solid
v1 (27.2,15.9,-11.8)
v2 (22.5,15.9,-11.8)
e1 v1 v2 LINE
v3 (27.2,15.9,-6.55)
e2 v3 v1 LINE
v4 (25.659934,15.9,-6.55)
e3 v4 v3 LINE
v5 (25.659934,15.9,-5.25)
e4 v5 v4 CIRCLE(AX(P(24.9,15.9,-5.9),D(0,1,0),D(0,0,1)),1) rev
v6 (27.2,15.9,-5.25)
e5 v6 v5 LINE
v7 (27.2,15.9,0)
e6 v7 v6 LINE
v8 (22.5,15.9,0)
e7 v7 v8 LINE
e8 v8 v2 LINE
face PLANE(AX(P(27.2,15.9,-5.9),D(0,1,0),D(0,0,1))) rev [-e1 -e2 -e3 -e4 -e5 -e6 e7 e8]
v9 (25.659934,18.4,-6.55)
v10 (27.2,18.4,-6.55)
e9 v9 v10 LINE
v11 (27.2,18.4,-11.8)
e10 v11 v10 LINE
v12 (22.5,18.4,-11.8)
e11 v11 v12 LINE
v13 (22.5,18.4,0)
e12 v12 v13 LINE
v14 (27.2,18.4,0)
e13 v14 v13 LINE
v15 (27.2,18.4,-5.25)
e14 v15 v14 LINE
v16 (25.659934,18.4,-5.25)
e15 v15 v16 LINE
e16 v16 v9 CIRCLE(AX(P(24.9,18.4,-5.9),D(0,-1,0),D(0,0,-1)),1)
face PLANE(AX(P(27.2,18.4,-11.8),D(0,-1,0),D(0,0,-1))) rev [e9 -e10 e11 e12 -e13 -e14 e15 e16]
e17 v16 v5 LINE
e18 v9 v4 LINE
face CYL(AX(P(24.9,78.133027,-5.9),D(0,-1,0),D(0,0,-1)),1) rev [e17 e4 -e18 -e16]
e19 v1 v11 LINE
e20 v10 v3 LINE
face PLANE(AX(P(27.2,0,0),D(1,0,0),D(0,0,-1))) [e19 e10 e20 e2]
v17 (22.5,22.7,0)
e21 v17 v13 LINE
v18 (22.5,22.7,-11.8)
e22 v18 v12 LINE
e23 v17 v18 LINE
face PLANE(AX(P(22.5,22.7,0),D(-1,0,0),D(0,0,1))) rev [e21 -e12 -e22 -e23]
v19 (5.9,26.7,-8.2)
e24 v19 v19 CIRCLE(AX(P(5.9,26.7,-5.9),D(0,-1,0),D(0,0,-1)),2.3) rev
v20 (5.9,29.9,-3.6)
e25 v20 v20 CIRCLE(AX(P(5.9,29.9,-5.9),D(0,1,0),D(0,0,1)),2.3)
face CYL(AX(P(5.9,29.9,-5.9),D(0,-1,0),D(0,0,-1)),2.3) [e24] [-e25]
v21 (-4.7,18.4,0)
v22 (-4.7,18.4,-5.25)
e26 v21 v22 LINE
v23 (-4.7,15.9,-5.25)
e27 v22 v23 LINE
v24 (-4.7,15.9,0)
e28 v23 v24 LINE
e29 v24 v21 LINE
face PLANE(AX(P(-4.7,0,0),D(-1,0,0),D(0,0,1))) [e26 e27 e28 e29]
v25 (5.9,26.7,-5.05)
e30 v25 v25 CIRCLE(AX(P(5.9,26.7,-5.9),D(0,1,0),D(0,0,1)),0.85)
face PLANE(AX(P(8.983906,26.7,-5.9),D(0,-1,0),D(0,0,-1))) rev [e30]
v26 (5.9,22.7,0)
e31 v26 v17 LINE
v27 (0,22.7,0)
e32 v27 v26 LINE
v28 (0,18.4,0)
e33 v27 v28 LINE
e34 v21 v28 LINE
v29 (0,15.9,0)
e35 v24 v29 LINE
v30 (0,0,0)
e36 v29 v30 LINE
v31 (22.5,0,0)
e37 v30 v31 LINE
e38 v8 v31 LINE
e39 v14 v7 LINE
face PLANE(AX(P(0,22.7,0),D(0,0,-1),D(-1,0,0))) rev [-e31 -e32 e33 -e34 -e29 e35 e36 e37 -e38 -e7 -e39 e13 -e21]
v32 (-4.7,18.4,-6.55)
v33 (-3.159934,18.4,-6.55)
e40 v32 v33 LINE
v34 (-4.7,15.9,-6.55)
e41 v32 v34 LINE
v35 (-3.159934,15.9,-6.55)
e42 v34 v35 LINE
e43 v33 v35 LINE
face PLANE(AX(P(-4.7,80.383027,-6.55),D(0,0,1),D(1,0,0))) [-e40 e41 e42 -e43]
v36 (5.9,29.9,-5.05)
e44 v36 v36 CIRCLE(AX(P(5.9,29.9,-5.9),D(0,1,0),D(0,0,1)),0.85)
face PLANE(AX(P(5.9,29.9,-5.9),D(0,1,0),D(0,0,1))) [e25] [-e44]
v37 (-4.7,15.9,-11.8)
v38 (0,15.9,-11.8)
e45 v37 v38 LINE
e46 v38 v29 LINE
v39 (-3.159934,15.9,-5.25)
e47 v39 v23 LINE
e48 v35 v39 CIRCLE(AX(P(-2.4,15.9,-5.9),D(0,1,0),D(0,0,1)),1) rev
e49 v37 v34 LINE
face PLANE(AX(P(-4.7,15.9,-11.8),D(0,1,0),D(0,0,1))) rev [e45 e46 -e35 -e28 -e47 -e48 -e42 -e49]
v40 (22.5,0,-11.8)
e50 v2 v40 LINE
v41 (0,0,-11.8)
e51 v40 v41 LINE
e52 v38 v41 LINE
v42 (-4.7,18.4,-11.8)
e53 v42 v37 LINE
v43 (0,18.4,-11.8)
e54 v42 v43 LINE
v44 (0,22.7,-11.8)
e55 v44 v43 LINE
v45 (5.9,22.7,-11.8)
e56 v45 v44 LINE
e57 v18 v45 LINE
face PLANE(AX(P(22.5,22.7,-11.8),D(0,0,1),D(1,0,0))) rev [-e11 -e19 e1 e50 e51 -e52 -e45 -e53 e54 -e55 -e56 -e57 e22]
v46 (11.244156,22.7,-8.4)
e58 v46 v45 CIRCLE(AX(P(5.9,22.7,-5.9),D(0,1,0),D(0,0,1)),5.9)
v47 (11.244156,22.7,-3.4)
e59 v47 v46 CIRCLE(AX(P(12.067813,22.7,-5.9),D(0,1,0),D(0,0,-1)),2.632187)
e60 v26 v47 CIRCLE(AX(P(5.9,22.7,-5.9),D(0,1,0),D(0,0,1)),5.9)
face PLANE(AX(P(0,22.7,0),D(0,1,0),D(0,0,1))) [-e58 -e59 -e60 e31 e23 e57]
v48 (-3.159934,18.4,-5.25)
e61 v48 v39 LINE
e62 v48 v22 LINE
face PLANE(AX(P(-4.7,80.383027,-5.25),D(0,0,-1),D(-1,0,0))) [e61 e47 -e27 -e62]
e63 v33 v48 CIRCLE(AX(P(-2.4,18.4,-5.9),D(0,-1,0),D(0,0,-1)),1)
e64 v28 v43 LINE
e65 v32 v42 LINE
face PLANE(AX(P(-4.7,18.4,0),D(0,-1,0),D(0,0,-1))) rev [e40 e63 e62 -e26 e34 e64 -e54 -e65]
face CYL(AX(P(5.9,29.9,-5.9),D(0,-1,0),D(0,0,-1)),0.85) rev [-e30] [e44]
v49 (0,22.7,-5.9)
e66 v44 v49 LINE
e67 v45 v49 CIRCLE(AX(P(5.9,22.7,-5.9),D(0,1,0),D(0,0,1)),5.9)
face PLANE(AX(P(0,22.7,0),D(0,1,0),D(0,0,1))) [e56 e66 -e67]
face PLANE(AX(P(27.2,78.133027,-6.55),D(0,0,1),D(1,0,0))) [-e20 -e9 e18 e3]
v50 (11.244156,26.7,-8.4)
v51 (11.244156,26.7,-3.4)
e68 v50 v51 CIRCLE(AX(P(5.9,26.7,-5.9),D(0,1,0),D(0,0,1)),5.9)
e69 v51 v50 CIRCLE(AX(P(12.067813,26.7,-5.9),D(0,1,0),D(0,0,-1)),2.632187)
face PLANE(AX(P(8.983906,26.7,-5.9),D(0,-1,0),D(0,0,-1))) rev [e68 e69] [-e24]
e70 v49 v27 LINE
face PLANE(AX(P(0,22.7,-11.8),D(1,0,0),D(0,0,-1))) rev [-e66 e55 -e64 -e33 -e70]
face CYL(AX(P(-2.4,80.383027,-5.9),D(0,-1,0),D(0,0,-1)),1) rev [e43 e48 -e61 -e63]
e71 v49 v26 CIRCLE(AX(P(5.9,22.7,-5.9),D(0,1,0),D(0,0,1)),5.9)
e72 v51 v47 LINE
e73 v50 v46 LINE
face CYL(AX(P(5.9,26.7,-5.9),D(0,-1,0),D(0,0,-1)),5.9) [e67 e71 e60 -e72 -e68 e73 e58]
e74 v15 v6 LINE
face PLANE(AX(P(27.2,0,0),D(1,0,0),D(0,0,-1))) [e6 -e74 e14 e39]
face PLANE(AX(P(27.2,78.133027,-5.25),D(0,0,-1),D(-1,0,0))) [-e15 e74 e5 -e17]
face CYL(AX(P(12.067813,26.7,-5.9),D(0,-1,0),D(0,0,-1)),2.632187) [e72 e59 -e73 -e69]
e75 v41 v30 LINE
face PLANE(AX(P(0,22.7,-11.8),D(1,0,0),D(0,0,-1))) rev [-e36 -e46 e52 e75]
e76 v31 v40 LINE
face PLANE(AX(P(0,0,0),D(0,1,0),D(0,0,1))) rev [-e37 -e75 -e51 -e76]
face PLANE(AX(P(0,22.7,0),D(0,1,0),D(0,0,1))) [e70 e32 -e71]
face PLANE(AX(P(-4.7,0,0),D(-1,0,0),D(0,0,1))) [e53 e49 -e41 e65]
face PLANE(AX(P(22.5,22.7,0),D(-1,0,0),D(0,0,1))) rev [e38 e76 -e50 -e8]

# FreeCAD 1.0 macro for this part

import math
import FreeCAD as App
import Part
import Sketcher
from FreeCAD import Vector

doc = App.newDocument("Part")
params = doc.addObject("Spreadsheet::Sheet", "Params")
for row, (alias, value) in enumerate([
    ("sketch1_width", "22.5 mm"),
    ("sketch1_height", "11.8 mm"),
    ("pad1_length", "22.7 mm"),
    ("sketch2_width", "2.5 mm"),
    ("sketch2_height", "11.8 mm"),
    ("pad2_length", "4.7 mm"),
    ("sketch3_width", "2.5 mm"),
    ("sketch3_height", "11.8 mm"),
    ("pad3_length", "4.7 mm"),
    ("sketch4_radius", "5.9 mm"),
    ("pad4_length", "4 mm"),
    ("sketch5_diameter", "4.6 mm"),
    ("sketch5_diameter2", "1.7 mm"),
    ("pad5_length", "3.2 mm"),
    ("sketch6_radius", "1 mm"),
    ("sketch6_height", "1.3 mm"),
    ("sketch7_radius", "1 mm"),
    ("sketch7_height", "1.3 mm"),
], start=1):
    params.set(f"A{row}", alias)
    params.set(f"B{row}", "=" + value)
    params.setAlias(f"B{row}", alias)

body = doc.addObject("PartDesign::Body", "Body")

# Sketch on XZ plane
sketch1 = doc.addObject("Sketcher::SketchObject", "Sketch")
body.addObject(sketch1)
sketch1.AttachmentSupport = (doc.XZ_Plane, [""])
sketch1.MapMode = "FlatFace"
sketch1.addGeometry(Part.LineSegment(Vector(0, -12, 0), Vector(0, 0, 0)), False)
sketch1.addGeometry(Part.LineSegment(Vector(0, 0, 0), Vector(22, 0, 0)), False)
sketch1.addGeometry(Part.LineSegment(Vector(22, 0, 0), Vector(22, -12, 0)), False)
sketch1.addGeometry(Part.LineSegment(Vector(22, -12, 0), Vector(0, -12, 0)), False)
sketch1.addConstraint(Sketcher.Constraint("Coincident", 0, 2, 1, 1))
sketch1.addConstraint(Sketcher.Constraint("Coincident", 1, 2, 2, 1))
sketch1.addConstraint(Sketcher.Constraint("Coincident", 2, 2, 3, 1))
sketch1.addConstraint(Sketcher.Constraint("Coincident", 3, 2, 0, 1))
sketch1.addConstraint(Sketcher.Constraint("Vertical", 0))
sketch1.addConstraint(Sketcher.Constraint("Horizontal", 1))
sketch1.addConstraint(Sketcher.Constraint("Vertical", 2))
sketch1.addConstraint(Sketcher.Constraint("Horizontal", 3))
sketch1.addConstraint(Sketcher.Constraint("Coincident", 0, 2, -1, 1))
sketch1.addConstraint(Sketcher.Constraint("DistanceX", 1, 1, 1, 2, 22.5))
sketch1.addConstraint(Sketcher.Constraint("DistanceY", 0, 1, 0, 2, 11.8))
sketch1.setExpression("Constraints[9]", "Params.sketch1_width")
sketch1.setExpression("Constraints[10]", "Params.sketch1_height")
pad1 = doc.addObject("PartDesign::Pad", "Pad")
body.addObject(pad1)
pad1.Profile = sketch1
pad1.setExpression("Length", "Params.pad1_length")
pad1.Reversed = True

# Sketch on YZ plane
sketch2 = doc.addObject("Sketcher::SketchObject", "Sketch001")
body.addObject(sketch2)
sketch2.AttachmentSupport = (doc.YZ_Plane, [""])
sketch2.MapMode = "FlatFace"
sketch2.addGeometry(Part.LineSegment(Vector(18.4, -11.8, 0), Vector(15.9, -11.8, 0)), False)
sketch2.addGeometry(Part.LineSegment(Vector(15.9, -11.8, 0), Vector(15.9, 0, 0)), False)
sketch2.addGeometry(Part.LineSegment(Vector(15.9, 0, 0), Vector(18.4, 0, 0)), False)
sketch2.addGeometry(Part.LineSegment(Vector(18.4, 0, 0), Vector(18.4, -11.8, 0)), False)
sketch2.addConstraint(Sketcher.Constraint("Coincident", 0, 2, 1, 1))
sketch2.addConstraint(Sketcher.Constraint("Coincident", 1, 2, 2, 1))
sketch2.addConstraint(Sketcher.Constraint("Coincident", 2, 2, 3, 1))
sketch2.addConstraint(Sketcher.Constraint("Coincident", 3, 2, 0, 1))
sketch2.addConstraint(Sketcher.Constraint("Horizontal", 0))
sketch2.addConstraint(Sketcher.Constraint("Vertical", 1))
sketch2.addConstraint(Sketcher.Constraint("Horizontal", 2))
sketch2.addConstraint(Sketcher.Constraint("Vertical", 3))
sketch2.addConstraint(Sketcher.Constraint("PointOnObject", 1, 2, -1))
sketch2.addConstraint(Sketcher.Constraint("DistanceX", 0, 2, 0, 1, 2.5))
sketch2.addConstraint(Sketcher.Constraint("DistanceY", 1, 1, 1, 2, 11.8))
sketch2.addConstraint(Sketcher.Constraint("DistanceX", -1, 1, 0, 2, 15.9))
sketch2.setExpression("Constraints[9]", "Params.sketch2_width")
sketch2.setExpression("Constraints[10]", "Params.sketch2_height")
pad2 = doc.addObject("PartDesign::Pad", "Pad001")
body.addObject(pad2)
pad2.Profile = sketch2
pad2.setExpression("Length", "Params.pad2_length")
pad2.Reversed = True

# Sketch on YZ plane
sketch3 = doc.addObject("Sketcher::SketchObject", "Sketch002")
body.addObject(sketch3)
sketch3.AttachmentSupport = (doc.YZ_Plane, [""])
sketch3.MapMode = "FlatFace"
sketch3.AttachmentOffset = App.Placement(Vector(0, 0, 22.5), App.Rotation())
sketch3.addGeometry(Part.LineSegment(Vector(15.9, -11.8, 0), Vector(18.4, -11.8, 0)), False)
sketch3.addGeometry(Part.LineSegment(Vector(18.4, -11.8, 0), Vector(18.4, 0, 0)), False)
sketch3.addGeometry(Part.LineSegment(Vector(18.4, 0, 0), Vector(15.9, 0, 0)), False)
sketch3.addGeometry(Part.LineSegment(Vector(15.9, 0, 0), Vector(15.9, -11.8, 0)), False)
sketch3.addConstraint(Sketcher.Constraint("Coincident", 0, 2, 1, 1))
sketch3.addConstraint(Sketcher.Constraint("Coincident", 1, 2, 2, 1))
sketch3.addConstraint(Sketcher.Constraint("Coincident", 2, 2, 3, 1))
sketch3.addConstraint(Sketcher.Constraint("Coincident", 3, 2, 0, 1))
sketch3.addConstraint(Sketcher.Constraint("Horizontal", 0))
sketch3.addConstraint(Sketcher.Constraint("Vertical", 1))
sketch3.addConstraint(Sketcher.Constraint("Horizontal", 2))
sketch3.addConstraint(Sketcher.Constraint("Vertical", 3))
sketch3.addConstraint(Sketcher.Constraint("PointOnObject", 1, 2, -1))
sketch3.addConstraint(Sketcher.Constraint("DistanceX", 0, 1, 0, 2, 2.5))
sketch3.addConstraint(Sketcher.Constraint("DistanceY", 1, 1, 1, 2, 11.8))
sketch3.addConstraint(Sketcher.Constraint("DistanceX", -1, 1, 0, 2, 18.4))
sketch3.setExpression("Constraints[9]", "Params.sketch3_width")
sketch3.setExpression("Constraints[10]", "Params.sketch3_height")
pad3 = doc.addObject("PartDesign::Pad", "Pad002")
body.addObject(pad3)
pad3.Profile = sketch3
pad3.setExpression("Length", "Params.pad3_length")

# Sketch on XZ plane
sketch4 = doc.addObject("Sketcher::SketchObject", "Sketch003")
body.addObject(sketch4)
sketch4.AttachmentSupport = (doc.XZ_Plane, [""])
sketch4.MapMode = "FlatFace"
sketch4.AttachmentOffset = App.Placement(Vector(0, 0, -22.7), App.Rotation())
sketch4.addGeometry(Part.ArcOfCircle(Part.Circle(Vector(5.9, -5.9, 0), Vector(0, 0, 1), 5.9), math.radians(25), math.radians(335)), False)
sketch4.addGeometry(Part.ArcOfCircle(Part.Circle(Vector(12.1, -5.9, 0), Vector(0, 0, 1), 2.6), math.radians(-108), math.radians(108)), False)
sketch4.addConstraint(Sketcher.Constraint("Coincident", 0, 1, 1, 2))
sketch4.addConstraint(Sketcher.Constraint("Coincident", 1, 1, 0, 2))
sketch4.addConstraint(Sketcher.Constraint("Horizontal", 0, 3, 1, 3))
sketch4.addConstraint(Sketcher.Constraint("Radius", 0, 5.9))
sketch4.addConstraint(Sketcher.Constraint("DistanceY", 1, 1, 0, 1, 5.0))
sketch4.addConstraint(Sketcher.Constraint("DistanceX", -1, 1, 0, 3, 5.9))
sketch4.addConstraint(Sketcher.Constraint("DistanceY", 0, 3, -1, 1, 5.9))
sketch4.addConstraint(Sketcher.Constraint("Radius", 1, 2.632187))
sketch4.setExpression("Constraints[3]", "Params.sketch4_radius")
pad4 = doc.addObject("PartDesign::Pad", "Pad003")
body.addObject(pad4)
pad4.Profile = sketch4
pad4.setExpression("Length", "Params.pad4_length")
pad4.Reversed = True

# Sketch on XZ plane
sketch5 = doc.addObject("Sketcher::SketchObject", "Sketch004")
body.addObject(sketch5)
sketch5.AttachmentSupport = (doc.XZ_Plane, [""])
sketch5.MapMode = "FlatFace"
sketch5.AttachmentOffset = App.Placement(Vector(0, 0, -26.7), App.Rotation())
sketch5.addGeometry(Part.Circle(Vector(5.9, -5.9, 0), Vector(0, 0, 1), 2.3), False)
sketch5.addGeometry(Part.Circle(Vector(5.9, -5.9, 0), Vector(0, 0, 1), 0.8), False)
sketch5.addConstraint(Sketcher.Constraint("Coincident", 1, 3, 0, 3))
sketch5.addConstraint(Sketcher.Constraint("Diameter", 0, 4.6))
sketch5.addConstraint(Sketcher.Constraint("Diameter", 1, 1.7))
sketch5.addConstraint(Sketcher.Constraint("DistanceX", -1, 1, 0, 3, 5.9))
sketch5.addConstraint(Sketcher.Constraint("DistanceY", 0, 3, -1, 1, 5.9))
sketch5.setExpression("Constraints[1]", "Params.sketch5_diameter")
sketch5.setExpression("Constraints[2]", "Params.sketch5_diameter2")
pad5 = doc.addObject("PartDesign::Pad", "Pad004")
body.addObject(pad5)
pad5.Profile = sketch5
pad5.setExpression("Length", "Params.pad5_length")
pad5.Reversed = True

# Sketch on XZ plane
sketch6 = doc.addObject("Sketcher::SketchObject", "Sketch005")
body.addObject(sketch6)
sketch6.AttachmentSupport = (doc.XZ_Plane, [""])
sketch6.MapMode = "FlatFace"
sketch6.AttachmentOffset = App.Placement(Vector(0, 0, -18.4), App.Rotation())
sketch6.addGeometry(Part.LineSegment(Vector(-3.2, -6.5, 0), Vector(-4.7, -6.5, 0)), False)
sketch6.addGeometry(Part.LineSegment(Vector(-4.7, -6.5, 0), Vector(-4.7, -5.2, 0)), False)
sketch6.addGeometry(Part.LineSegment(Vector(-4.7, -5.2, 0), Vector(-3.2, -5.2, 0)), False)
sketch6.addGeometry(Part.ArcOfCircle(Part.Circle(Vector(-2.4, -5.9, 0), Vector(0, 0, 1), 1), math.radians(-139), math.radians(139)), False)
sketch6.addConstraint(Sketcher.Constraint("Coincident", 0, 2, 1, 1))
sketch6.addConstraint(Sketcher.Constraint("Coincident", 1, 2, 2, 1))
sketch6.addConstraint(Sketcher.Constraint("Coincident", 2, 2, 3, 2))
sketch6.addConstraint(Sketcher.Constraint("Coincident", 3, 1, 0, 1))
sketch6.addConstraint(Sketcher.Constraint("Horizontal", 0))
sketch6.addConstraint(Sketcher.Constraint("Vertical", 1))
sketch6.addConstraint(Sketcher.Constraint("Horizontal", 2))
sketch6.addConstraint(Sketcher.Constraint("Vertical", 2, 2, 3, 1))
sketch6.addConstraint(Sketcher.Constraint("Radius", 3, 1.0))
sketch6.addConstraint(Sketcher.Constraint("DistanceY", 1, 1, 1, 2, 1.3))
sketch6.addConstraint(Sketcher.Constraint("DistanceX", 3, 3, -1, 1, 2.4))
sketch6.addConstraint(Sketcher.Constraint("DistanceY", 3, 3, -1, 1, 5.9))
sketch6.addConstraint(Sketcher.Constraint("DistanceX", 0, 2, -1, 1, 4.7))
sketch6.setExpression("Constraints[8]", "Params.sketch6_radius")
sketch6.setExpression("Constraints[9]", "Params.sketch6_height")
pocket1 = doc.addObject("PartDesign::Pocket", "Pocket")
body.addObject(pocket1)
pocket1.Profile = sketch6
pocket1.Type = "ThroughAll"
pocket1.Midplane = True

# Sketch on XZ plane
sketch7 = doc.addObject("Sketcher::SketchObject", "Sketch006")
body.addObject(sketch7)
sketch7.AttachmentSupport = (doc.XZ_Plane, [""])
sketch7.MapMode = "FlatFace"
sketch7.AttachmentOffset = App.Placement(Vector(0, 0, -18.4), App.Rotation())
sketch7.addGeometry(Part.LineSegment(Vector(25.7, -5.2, 0), Vector(27.2, -5.2, 0)), False)
sketch7.addGeometry(Part.LineSegment(Vector(27.2, -5.2, 0), Vector(27.2, -6.5, 0)), False)
sketch7.addGeometry(Part.LineSegment(Vector(27.2, -6.5, 0), Vector(25.7, -6.5, 0)), False)
sketch7.addGeometry(Part.ArcOfCircle(Part.Circle(Vector(24.9, -5.9, 0), Vector(0, 0, 1), 1), math.radians(41), math.radians(319)), False)
sketch7.addConstraint(Sketcher.Constraint("Coincident", 0, 2, 1, 1))
sketch7.addConstraint(Sketcher.Constraint("Coincident", 1, 2, 2, 1))
sketch7.addConstraint(Sketcher.Constraint("Coincident", 2, 2, 3, 2))
sketch7.addConstraint(Sketcher.Constraint("Coincident", 3, 1, 0, 1))
sketch7.addConstraint(Sketcher.Constraint("Horizontal", 0))
sketch7.addConstraint(Sketcher.Constraint("Vertical", 1))
sketch7.addConstraint(Sketcher.Constraint("Horizontal", 2))
sketch7.addConstraint(Sketcher.Constraint("Vertical", 2, 2, 3, 1))
sketch7.addConstraint(Sketcher.Constraint("Radius", 3, 1.0))
sketch7.addConstraint(Sketcher.Constraint("DistanceY", 1, 2, 1, 1, 1.3))
sketch7.addConstraint(Sketcher.Constraint("DistanceX", -1, 1, 3, 3, 24.9))
sketch7.addConstraint(Sketcher.Constraint("DistanceY", 3, 3, -1, 1, 5.9))
sketch7.addConstraint(Sketcher.Constraint("DistanceX", -1, 1, 0, 2, 27.2))
sketch7.setExpression("Constraints[8]", "Params.sketch7_radius")
sketch7.setExpression("Constraints[9]", "Params.sketch7_height")
pocket2 = doc.addObject("PartDesign::Pocket", "Pocket001")
body.addObject(pocket2)
pocket2.Profile = sketch7
pocket2.Type = "ThroughAll"
pocket2.Midplane = True

doc.recompute()
